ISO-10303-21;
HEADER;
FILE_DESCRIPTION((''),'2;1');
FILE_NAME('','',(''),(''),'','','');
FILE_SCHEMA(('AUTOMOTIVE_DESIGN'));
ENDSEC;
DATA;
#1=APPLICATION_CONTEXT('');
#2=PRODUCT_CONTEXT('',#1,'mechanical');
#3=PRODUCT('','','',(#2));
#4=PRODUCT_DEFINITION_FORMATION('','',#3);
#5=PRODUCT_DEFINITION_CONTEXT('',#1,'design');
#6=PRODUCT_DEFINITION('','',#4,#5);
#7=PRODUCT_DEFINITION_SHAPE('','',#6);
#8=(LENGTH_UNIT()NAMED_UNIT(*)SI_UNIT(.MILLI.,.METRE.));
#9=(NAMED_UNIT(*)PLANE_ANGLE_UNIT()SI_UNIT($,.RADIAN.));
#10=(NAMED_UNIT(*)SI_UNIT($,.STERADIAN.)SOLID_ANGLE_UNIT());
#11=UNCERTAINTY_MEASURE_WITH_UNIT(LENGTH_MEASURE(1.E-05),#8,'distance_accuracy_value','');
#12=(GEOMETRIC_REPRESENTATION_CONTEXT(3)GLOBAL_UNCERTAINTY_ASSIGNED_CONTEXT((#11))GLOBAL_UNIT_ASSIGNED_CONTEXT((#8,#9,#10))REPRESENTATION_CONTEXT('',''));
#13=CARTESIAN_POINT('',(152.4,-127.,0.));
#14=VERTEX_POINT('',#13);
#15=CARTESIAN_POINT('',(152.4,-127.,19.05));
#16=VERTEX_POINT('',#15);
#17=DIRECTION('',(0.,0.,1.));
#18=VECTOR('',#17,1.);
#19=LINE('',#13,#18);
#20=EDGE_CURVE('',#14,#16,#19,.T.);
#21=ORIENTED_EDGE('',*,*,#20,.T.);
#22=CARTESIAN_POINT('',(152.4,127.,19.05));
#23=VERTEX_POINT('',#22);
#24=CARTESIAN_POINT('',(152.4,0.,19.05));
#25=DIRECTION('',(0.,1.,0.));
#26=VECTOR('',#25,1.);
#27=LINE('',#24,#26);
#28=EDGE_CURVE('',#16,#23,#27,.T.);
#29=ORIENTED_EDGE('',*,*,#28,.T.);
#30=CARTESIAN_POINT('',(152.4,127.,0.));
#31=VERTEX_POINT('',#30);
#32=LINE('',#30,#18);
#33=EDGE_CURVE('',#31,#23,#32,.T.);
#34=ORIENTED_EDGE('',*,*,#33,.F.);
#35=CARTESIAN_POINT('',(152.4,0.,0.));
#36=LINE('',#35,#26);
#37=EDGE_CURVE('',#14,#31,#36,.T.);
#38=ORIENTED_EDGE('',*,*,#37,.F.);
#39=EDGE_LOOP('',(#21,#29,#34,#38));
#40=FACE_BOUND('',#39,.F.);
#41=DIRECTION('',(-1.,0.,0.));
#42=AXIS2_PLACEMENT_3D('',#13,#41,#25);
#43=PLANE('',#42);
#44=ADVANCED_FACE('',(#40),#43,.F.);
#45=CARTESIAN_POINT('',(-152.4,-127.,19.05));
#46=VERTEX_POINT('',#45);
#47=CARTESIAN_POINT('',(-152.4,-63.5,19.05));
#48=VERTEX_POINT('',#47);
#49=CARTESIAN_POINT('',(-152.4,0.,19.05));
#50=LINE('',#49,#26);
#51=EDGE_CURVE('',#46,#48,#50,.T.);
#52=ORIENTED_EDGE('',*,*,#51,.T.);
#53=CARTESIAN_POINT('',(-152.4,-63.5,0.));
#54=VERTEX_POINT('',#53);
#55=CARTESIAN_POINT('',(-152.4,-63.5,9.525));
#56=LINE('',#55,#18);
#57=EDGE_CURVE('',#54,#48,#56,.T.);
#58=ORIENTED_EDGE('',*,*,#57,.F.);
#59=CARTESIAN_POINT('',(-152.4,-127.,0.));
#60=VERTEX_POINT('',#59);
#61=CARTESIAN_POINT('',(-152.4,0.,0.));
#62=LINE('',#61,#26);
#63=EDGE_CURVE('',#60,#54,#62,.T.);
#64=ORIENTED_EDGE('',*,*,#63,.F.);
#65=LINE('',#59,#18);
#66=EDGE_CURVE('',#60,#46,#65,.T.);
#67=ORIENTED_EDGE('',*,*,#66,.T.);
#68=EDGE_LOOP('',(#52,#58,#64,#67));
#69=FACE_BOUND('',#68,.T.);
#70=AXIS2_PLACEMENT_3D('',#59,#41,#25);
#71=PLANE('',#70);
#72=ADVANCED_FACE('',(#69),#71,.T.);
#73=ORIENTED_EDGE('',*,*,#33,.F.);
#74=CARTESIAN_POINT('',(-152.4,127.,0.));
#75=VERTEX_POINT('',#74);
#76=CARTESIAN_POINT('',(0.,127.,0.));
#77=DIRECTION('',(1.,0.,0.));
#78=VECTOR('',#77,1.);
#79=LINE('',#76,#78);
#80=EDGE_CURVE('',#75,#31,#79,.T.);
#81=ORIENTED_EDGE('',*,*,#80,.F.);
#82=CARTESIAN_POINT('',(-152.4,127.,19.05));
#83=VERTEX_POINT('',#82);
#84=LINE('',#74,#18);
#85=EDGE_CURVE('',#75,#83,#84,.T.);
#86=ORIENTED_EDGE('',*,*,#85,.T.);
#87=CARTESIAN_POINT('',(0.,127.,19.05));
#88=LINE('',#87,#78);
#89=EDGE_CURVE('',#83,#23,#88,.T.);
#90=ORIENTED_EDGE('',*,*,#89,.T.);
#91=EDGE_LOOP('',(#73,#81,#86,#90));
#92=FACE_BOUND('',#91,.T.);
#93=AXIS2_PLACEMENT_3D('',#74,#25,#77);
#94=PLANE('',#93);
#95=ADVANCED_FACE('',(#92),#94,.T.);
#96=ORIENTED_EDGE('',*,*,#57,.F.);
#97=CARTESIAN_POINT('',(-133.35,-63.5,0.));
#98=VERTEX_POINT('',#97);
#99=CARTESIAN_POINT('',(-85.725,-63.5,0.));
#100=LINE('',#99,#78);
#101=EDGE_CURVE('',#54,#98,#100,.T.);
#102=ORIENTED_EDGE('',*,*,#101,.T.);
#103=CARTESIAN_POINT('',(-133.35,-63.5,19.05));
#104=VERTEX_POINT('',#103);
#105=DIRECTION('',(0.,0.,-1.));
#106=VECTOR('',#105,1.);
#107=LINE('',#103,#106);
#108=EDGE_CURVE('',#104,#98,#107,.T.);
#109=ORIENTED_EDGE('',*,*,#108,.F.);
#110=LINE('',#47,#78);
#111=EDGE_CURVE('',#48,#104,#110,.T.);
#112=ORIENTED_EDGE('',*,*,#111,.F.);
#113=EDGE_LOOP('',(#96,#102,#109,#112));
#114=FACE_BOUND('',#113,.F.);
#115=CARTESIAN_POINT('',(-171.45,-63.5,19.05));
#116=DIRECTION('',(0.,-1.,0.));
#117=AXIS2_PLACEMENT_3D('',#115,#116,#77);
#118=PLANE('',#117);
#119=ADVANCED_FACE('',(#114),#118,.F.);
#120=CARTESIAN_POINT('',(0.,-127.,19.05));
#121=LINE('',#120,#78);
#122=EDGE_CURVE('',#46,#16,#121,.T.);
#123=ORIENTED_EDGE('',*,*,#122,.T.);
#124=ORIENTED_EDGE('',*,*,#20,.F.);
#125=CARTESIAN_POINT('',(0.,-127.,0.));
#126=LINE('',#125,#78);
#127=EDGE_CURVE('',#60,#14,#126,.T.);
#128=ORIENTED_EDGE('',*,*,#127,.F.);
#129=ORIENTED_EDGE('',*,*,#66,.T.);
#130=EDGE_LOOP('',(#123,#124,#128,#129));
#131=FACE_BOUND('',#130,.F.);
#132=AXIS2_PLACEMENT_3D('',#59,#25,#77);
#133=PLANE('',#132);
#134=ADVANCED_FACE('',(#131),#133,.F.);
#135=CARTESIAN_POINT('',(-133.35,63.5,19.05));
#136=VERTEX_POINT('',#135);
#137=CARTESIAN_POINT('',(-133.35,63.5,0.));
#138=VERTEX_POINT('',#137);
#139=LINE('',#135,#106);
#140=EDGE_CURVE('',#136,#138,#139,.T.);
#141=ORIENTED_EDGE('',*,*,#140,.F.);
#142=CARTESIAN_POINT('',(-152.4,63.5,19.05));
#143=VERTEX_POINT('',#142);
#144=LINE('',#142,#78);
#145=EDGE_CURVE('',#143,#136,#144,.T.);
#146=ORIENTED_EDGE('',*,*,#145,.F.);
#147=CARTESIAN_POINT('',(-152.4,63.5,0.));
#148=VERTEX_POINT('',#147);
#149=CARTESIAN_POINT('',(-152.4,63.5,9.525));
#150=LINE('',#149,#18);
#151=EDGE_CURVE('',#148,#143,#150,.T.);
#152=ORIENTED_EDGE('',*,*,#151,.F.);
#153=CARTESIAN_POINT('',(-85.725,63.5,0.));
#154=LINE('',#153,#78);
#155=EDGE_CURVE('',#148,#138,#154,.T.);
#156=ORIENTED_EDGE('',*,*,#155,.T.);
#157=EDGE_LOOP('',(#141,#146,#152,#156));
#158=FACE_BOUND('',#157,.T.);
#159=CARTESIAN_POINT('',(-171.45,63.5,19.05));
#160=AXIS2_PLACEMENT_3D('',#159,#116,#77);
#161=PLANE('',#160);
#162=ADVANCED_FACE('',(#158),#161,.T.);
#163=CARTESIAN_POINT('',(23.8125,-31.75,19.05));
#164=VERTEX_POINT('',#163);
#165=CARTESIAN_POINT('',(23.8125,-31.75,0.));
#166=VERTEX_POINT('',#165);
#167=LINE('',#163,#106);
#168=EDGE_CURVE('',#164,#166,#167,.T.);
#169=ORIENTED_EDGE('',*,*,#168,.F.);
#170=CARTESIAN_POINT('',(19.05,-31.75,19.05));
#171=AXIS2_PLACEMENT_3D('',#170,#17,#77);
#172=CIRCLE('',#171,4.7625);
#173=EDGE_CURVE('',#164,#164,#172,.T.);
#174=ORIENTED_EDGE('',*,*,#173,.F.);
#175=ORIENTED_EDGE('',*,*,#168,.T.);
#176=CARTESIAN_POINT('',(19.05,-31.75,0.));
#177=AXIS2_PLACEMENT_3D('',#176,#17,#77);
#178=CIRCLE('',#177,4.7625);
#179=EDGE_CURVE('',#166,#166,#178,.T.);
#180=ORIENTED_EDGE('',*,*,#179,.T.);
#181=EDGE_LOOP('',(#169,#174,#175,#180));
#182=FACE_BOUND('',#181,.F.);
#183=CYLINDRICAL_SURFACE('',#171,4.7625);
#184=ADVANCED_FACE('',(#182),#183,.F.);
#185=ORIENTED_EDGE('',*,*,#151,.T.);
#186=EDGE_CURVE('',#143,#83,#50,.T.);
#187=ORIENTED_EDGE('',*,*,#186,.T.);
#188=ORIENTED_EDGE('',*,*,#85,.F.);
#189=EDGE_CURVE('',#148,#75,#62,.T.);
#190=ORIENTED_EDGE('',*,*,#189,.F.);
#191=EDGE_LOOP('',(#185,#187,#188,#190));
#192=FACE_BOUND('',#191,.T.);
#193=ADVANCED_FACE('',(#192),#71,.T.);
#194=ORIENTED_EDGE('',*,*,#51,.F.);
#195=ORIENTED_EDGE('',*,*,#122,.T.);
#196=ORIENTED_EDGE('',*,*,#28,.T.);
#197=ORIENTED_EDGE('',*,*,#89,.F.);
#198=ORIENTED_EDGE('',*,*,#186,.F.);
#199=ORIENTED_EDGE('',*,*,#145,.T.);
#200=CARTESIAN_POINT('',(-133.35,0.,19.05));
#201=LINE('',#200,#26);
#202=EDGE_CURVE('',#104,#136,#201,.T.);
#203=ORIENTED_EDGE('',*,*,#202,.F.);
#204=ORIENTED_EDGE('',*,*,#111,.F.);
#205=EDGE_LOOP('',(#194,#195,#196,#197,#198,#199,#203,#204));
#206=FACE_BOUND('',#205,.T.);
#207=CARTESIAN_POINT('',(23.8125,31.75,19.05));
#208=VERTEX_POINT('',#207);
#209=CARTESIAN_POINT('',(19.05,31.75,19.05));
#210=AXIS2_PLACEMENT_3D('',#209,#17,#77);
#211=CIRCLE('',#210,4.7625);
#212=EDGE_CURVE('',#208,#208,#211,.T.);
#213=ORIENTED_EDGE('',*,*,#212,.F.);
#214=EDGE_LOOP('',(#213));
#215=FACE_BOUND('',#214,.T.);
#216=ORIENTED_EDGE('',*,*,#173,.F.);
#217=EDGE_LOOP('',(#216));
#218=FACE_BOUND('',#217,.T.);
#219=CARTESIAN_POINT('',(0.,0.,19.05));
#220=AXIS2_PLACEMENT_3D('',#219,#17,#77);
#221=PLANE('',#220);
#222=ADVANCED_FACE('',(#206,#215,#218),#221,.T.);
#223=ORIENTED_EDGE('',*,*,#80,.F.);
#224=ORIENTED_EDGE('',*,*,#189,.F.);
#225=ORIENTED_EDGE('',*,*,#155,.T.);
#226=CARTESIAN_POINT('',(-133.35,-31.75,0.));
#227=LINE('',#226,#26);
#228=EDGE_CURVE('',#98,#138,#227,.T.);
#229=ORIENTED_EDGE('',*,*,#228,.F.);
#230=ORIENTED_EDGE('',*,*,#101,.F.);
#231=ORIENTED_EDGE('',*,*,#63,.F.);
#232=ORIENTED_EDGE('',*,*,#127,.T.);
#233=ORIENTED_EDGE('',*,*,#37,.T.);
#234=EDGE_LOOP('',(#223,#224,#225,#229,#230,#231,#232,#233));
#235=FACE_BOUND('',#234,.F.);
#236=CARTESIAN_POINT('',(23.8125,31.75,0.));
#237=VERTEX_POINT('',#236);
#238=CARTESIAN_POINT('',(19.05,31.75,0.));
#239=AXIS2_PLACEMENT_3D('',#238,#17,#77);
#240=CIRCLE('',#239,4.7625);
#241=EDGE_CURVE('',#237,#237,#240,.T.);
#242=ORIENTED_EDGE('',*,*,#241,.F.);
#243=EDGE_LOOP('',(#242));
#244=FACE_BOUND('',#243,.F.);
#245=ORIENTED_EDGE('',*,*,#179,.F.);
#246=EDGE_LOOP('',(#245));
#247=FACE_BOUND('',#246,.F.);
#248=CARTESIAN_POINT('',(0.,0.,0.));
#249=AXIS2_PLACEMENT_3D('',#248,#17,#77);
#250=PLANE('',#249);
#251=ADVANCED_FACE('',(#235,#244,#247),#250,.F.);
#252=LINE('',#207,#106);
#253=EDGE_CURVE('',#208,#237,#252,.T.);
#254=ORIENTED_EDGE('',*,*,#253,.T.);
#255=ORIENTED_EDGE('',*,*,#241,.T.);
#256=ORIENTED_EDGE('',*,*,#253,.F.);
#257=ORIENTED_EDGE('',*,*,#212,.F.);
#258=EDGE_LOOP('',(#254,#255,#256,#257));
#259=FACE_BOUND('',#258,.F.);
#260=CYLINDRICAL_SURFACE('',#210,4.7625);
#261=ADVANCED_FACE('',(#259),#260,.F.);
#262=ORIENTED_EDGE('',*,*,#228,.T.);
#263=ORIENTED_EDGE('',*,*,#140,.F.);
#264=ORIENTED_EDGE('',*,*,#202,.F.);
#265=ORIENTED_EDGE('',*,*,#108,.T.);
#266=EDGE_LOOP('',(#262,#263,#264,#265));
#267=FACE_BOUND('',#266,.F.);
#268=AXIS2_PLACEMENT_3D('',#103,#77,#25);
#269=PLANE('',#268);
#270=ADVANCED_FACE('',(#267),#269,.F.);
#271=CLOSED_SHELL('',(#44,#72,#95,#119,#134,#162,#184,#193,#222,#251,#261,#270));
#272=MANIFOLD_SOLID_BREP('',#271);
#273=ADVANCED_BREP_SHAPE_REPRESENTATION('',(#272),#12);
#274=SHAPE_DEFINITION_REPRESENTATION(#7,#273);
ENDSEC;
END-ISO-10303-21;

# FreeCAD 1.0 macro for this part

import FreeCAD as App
import Part
import Sketcher
Q = App.Units.Quantity

doc = App.newDocument("Part")
body = doc.addObject("PartDesign::Body", "Body")

sketch1 = doc.addObject("Sketcher::SketchObject", "Sketch")
body.addObject(sketch1)
sketch1.AttachmentSupport = (doc.XY_Plane, [""])
sketch1.MapMode = "FlatFace"
sketch1.addGeometry(Part.LineSegment(App.Vector(-152.4, 127, 0), App.Vector(-152.4, -127, 0)), False)
sketch1.addGeometry(Part.LineSegment(App.Vector(-152.4, -127, 0), App.Vector(152.4, -127, 0)), False)
sketch1.addGeometry(Part.LineSegment(App.Vector(152.4, -127, 0), App.Vector(152.4, 127, 0)), False)
sketch1.addGeometry(Part.LineSegment(App.Vector(152.4, 127, 0), App.Vector(-152.4, 127, 0)), False)
sketch1.addConstraint(Sketcher.Constraint("Coincident", 0, 2, 1, 1))
sketch1.addConstraint(Sketcher.Constraint("Coincident", 1, 2, 2, 1))
sketch1.addConstraint(Sketcher.Constraint("Coincident", 2, 2, 3, 1))
sketch1.addConstraint(Sketcher.Constraint("Coincident", 3, 2, 0, 1))
sketch1.addConstraint(Sketcher.Constraint("Vertical", 0))
sketch1.addConstraint(Sketcher.Constraint("Horizontal", 1))
sketch1.addConstraint(Sketcher.Constraint("Vertical", 2))
sketch1.addConstraint(Sketcher.Constraint("Horizontal", 3))
sketch1.addConstraint(Sketcher.Constraint("Symmetric", 0, 2, 2, 2, -1, 1))
sketch1.addConstraint(Sketcher.Constraint("DistanceX", 1, 1, 1, 2, Q("12 in")))
sketch1.addConstraint(Sketcher.Constraint("DistanceY", 0, 2, 0, 1, Q("10 in")))
pad1 = doc.addObject("PartDesign::Pad", "Pad")
body.addObject(pad1)
pad1.Profile = sketch1
pad1.Length = Q("0.75 in")

sketch2 = doc.addObject("Sketcher::SketchObject", "Sketch001")
body.addObject(sketch2)
sketch2.AttachmentSupport = (doc.XY_Plane, [""])
sketch2.MapMode = "FlatFace"
sketch2.AttachmentOffset = App.Placement(App.Vector(0, 0, 0.75 * 25.4), App.Rotation())
sketch2.addGeometry(Part.LineSegment(App.Vector(-171.45, 63.5, 0), App.Vector(-171.45, -63.5, 0)), False)
sketch2.addGeometry(Part.LineSegment(App.Vector(-171.45, -63.5, 0), App.Vector(-133.35, -63.5, 0)), False)
sketch2.addGeometry(Part.LineSegment(App.Vector(-133.35, -63.5, 0), App.Vector(-133.35, 63.5, 0)), False)
sketch2.addGeometry(Part.LineSegment(App.Vector(-133.35, 63.5, 0), App.Vector(-171.45, 63.5, 0)), False)
sketch2.addConstraint(Sketcher.Constraint("Coincident", 0, 2, 1, 1))
sketch2.addConstraint(Sketcher.Constraint("Coincident", 1, 2, 2, 1))
sketch2.addConstraint(Sketcher.Constraint("Coincident", 2, 2, 3, 1))
sketch2.addConstraint(Sketcher.Constraint("Coincident", 3, 2, 0, 1))
sketch2.addConstraint(Sketcher.Constraint("Vertical", 0))
sketch2.addConstraint(Sketcher.Constraint("Horizontal", 1))
sketch2.addConstraint(Sketcher.Constraint("Vertical", 2))
sketch2.addConstraint(Sketcher.Constraint("Horizontal", 3))
sketch2.addConstraint(Sketcher.Constraint("DistanceY", 0, 2, 0, 1, Q("5 in")))
sketch2.addConstraint(Sketcher.Constraint("DistanceX", 1, 1, 1, 2, Q("1.5 in")))
sketch2.addConstraint(Sketcher.Constraint("DistanceY", 0, 2, -1, 1, Q("2.5 in")))
sketch2.addConstraint(Sketcher.Constraint("DistanceX", 0, 2, -1, 1, Q("6.75 in")))
pocket1 = doc.addObject("PartDesign::Pocket", "Pocket")
body.addObject(pocket1)
pocket1.Profile = sketch2
pocket1.Type = "ThroughAll"

sketch3 = doc.addObject("Sketcher::SketchObject", "Sketch002")
body.addObject(sketch3)
sketch3.AttachmentSupport = (doc.XY_Plane, [""])
sketch3.MapMode = "FlatFace"
sketch3.AttachmentOffset = App.Placement(App.Vector(0, 0, 0.75 * 25.4), App.Rotation())
sketch3.addGeometry(Part.Circle(App.Vector(19.05, 31.75, 0), App.Vector(0, 0, 1), 4.7625), False)
sketch3.addGeometry(Part.Circle(App.Vector(19.05, -31.75, 0), App.Vector(0, 0, 1), 4.7625), False)
sketch3.addConstraint(Sketcher.Constraint("Equal", 0, 1))
sketch3.addConstraint(Sketcher.Constraint("Symmetric", 0, 3, 1, 3, -1))
sketch3.addConstraint(Sketcher.Constraint("Diameter", 0, Q("0.375 in")))
sketch3.addConstraint(Sketcher.Constraint("DistanceY", 1, 3, 0, 3, Q("2.5 in")))
sketch3.addConstraint(Sketcher.Constraint("DistanceX", -1, 1, 0, 3, Q("0.75 in")))
pocket2 = doc.addObject("PartDesign::Pocket", "Pocket001")
body.addObject(pocket2)
pocket2.Profile = sketch3
pocket2.Type = "ThroughAll"

doc.recompute()
